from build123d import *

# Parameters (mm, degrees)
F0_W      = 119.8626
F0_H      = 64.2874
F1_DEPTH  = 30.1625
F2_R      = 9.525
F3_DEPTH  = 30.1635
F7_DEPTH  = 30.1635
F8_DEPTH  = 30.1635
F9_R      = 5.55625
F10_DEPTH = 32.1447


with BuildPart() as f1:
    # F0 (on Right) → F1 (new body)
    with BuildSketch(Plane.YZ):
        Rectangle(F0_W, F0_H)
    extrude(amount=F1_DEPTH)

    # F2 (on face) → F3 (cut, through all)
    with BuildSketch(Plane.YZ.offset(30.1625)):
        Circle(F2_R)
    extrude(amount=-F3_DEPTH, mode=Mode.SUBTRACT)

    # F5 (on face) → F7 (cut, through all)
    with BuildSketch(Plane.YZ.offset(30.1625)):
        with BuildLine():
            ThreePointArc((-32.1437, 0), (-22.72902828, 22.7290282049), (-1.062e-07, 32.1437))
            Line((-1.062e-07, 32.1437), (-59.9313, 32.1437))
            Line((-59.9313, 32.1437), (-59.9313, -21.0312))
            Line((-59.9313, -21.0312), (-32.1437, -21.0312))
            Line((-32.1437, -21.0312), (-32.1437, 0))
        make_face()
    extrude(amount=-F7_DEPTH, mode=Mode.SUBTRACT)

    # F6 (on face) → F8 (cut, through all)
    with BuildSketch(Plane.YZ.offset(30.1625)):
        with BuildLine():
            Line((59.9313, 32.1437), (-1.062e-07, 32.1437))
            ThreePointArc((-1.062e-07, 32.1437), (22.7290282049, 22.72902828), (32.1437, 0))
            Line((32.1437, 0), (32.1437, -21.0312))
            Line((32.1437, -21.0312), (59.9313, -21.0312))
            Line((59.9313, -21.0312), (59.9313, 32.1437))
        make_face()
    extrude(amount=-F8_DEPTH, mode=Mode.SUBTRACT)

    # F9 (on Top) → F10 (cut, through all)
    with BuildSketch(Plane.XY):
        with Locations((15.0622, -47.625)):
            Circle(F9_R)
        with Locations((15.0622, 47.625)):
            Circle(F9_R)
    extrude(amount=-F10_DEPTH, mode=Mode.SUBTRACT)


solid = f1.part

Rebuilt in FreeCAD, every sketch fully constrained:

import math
import FreeCAD as App
import Part
import Sketcher

V = App.Vector
Q = App.Units.Quantity

doc = App.newDocument("Part")
body = doc.addObject("PartDesign::Body", "Body")

# Sketch on YZ plane
sketch1 = doc.addObject("Sketcher::SketchObject", "Sketch")
body.addObject(sketch1)
sketch1.AttachmentSupport = (doc.YZ_Plane, [""])
sketch1.MapMode = "FlatFace"
sketch1.addGeometry([
    Part.LineSegment(V(-60, 32, 0), V(-60, -32, 0)),
    Part.LineSegment(V(-60, -32, 0), V(60, -32, 0)),
    Part.LineSegment(V(60, -32, 0), V(60, 32, 0)),
    Part.LineSegment(V(60, 32, 0), V(-60, 32, 0)),
], False)
sketch1.addConstraint([
    Sketcher.Constraint("Coincident", 0, 2, 1, 1),
    Sketcher.Constraint("Coincident", 1, 2, 2, 1),
    Sketcher.Constraint("Coincident", 2, 2, 3, 1),
    Sketcher.Constraint("Coincident", 3, 2, 0, 1),
    Sketcher.Constraint("Vertical", 0),
    Sketcher.Constraint("Horizontal", 1),
    Sketcher.Constraint("Vertical", 2),
    Sketcher.Constraint("Horizontal", 3),
    Sketcher.Constraint("Symmetric", 0, 2, 2, 2, -1, 1),
    Sketcher.Constraint("DistanceX", 1, 1, 1, 2, Q("4.719 in")),
    Sketcher.Constraint("DistanceY", 0, 2, 0, 1, Q("2.531 in")),
])
pad1 = doc.addObject("PartDesign::Pad", "Pad")
body.addObject(pad1)
pad1.Profile = sketch1
pad1.Length = Q("1.1875 in")

# Sketch on YZ plane
sketch2 = doc.addObject("Sketcher::SketchObject", "Sketch001")
body.addObject(sketch2)
sketch2.AttachmentSupport = (doc.YZ_Plane, [""])
sketch2.MapMode = "FlatFace"
sketch2.AttachmentOffset = App.Placement(V(0, 0, 1.1875 * 25.4), App.Rotation())
sketch2.addGeometry(Part.Circle(V(0, 0, 0), V(0, 0, 1), 10), False)
sketch2.addConstraint([
    Sketcher.Constraint("Coincident", 0, 3, -1, 1),
    Sketcher.Constraint("Diameter", 0, Q("0.75 in")),
])
pocket1 = doc.addObject("PartDesign::Pocket", "Pocket")
body.addObject(pocket1)
pocket1.Profile = sketch2
pocket1.Type = "ThroughAll"

# Sketch on YZ plane
sketch3 = doc.addObject("Sketcher::SketchObject", "Sketch002")
body.addObject(sketch3)
sketch3.AttachmentSupport = (doc.YZ_Plane, [""])
sketch3.MapMode = "FlatFace"
sketch3.AttachmentOffset = App.Placement(V(0, 0, 1.1875 * 25.4), App.Rotation())
sketch3.addGeometry([
    Part.ArcOfCircle(Part.Circle(V(0, 0, 0), V(0, 0, 1), 32), math.radians(90), math.radians(180)),  # 0
    Part.LineSegment(V(0, 32, 0), V(-60, 32, 0)),  # 1
    Part.LineSegment(V(-60, 32, 0), V(-60, -21, 0)),  # 2
    Part.LineSegment(V(-60, -21, 0), V(-32, -21, 0)),  # 3
    Part.LineSegment(V(-32, -21, 0), V(-32, 0, 0)),  # 4
], False)
sketch3.addConstraint([
    Sketcher.Constraint("Tangent", 0, 1, 1, 1),
    Sketcher.Constraint("Coincident", 1, 2, 2, 1),
    Sketcher.Constraint("Coincident", 2, 2, 3, 1),
    Sketcher.Constraint("Coincident", 3, 2, 4, 1),
    Sketcher.Constraint("Tangent", 4, 2, 0, 2),
    Sketcher.Constraint("Horizontal", 1),
    Sketcher.Constraint("Vertical", 2),
    Sketcher.Constraint("Horizontal", 3),
    Sketcher.Constraint("Vertical", 4),
    Sketcher.Constraint("Coincident", 0, 3, -1, 1),
    Sketcher.Constraint("Radius", 0, Q("1.2655 in")),
    Sketcher.Constraint("DistanceX", 3, 1, 3, 2, Q("1.094 in")),
    Sketcher.Constraint("DistanceY", 4, 1, 4, 2, Q("0.828 in")),
])
pocket2 = doc.addObject("PartDesign::Pocket", "Pocket001")
body.addObject(pocket2)
pocket2.Profile = sketch3
pocket2.Type = "ThroughAll"

# Sketch on YZ plane
sketch4 = doc.addObject("Sketcher::SketchObject", "Sketch003")
body.addObject(sketch4)
sketch4.AttachmentSupport = (doc.YZ_Plane, [""])
sketch4.MapMode = "FlatFace"
sketch4.AttachmentOffset = App.Placement(V(0, 0, 1.1875 * 25.4), App.Rotation())
sketch4.addGeometry([
    Part.LineSegment(V(60, 32, 0), V(0, 32, 0)),  # 0
    Part.ArcOfCircle(Part.Circle(V(0, 0, 0), V(0, 0, 1), 32), math.radians(0), math.radians(90)),  # 1
    Part.LineSegment(V(32, 0, 0), V(32, -21, 0)),  # 2
    Part.LineSegment(V(32, -21, 0), V(60, -21, 0)),  # 3
    Part.LineSegment(V(60, -21, 0), V(60, 32, 0)),  # 4
], False)
sketch4.addConstraint([
    Sketcher.Constraint("Tangent", 0, 2, 1, 2),
    Sketcher.Constraint("Tangent", 1, 1, 2, 1),
    Sketcher.Constraint("Coincident", 2, 2, 3, 1),
    Sketcher.Constraint("Coincident", 3, 2, 4, 1),
    Sketcher.Constraint("Coincident", 4, 2, 0, 1),
    Sketcher.Constraint("Horizontal", 0),
    Sketcher.Constraint("Vertical", 2),
    Sketcher.Constraint("Horizontal", 3),
    Sketcher.Constraint("Vertical", 4),
    Sketcher.Constraint("Coincident", 1, 3, -1, 1),
    Sketcher.Constraint("Radius", 1, Q("1.2655 in")),
    Sketcher.Constraint("DistanceX", 3, 1, 3, 2, Q("1.094 in")),
    Sketcher.Constraint("DistanceY", 2, 2, 2, 1, Q("0.828 in")),
])
pocket3 = doc.addObject("PartDesign::Pocket", "Pocket002")
body.addObject(pocket3)
pocket3.Profile = sketch4
pocket3.Type = "ThroughAll"

# Sketch on XY plane
sketch5 = doc.addObject("Sketcher::SketchObject", "Sketch004")
body.addObject(sketch5)
sketch5.AttachmentSupport = (doc.XY_Plane, [""])
sketch5.MapMode = "FlatFace"
sketch5.addGeometry([
    Part.Circle(V(15, -48, 0), V(0, 0, 1), 6),
    Part.Circle(V(15, 48, 0), V(0, 0, 1), 6),
], False)
sketch5.addConstraint([
    Sketcher.Constraint("Equal", 0, 1),
    Sketcher.Constraint("Symmetric", 0, 3, 1, 3, -1),
    Sketcher.Constraint("Diameter", 0, Q("0.4375 in")),
    Sketcher.Constraint("DistanceY", 0, 3, 1, 3, Q("3.75 in")),
    Sketcher.Constraint("DistanceX", -1, 1, 0, 3, Q("0.593 in")),
])
pocket4 = doc.addObject("PartDesign::Pocket", "Pocket003")
body.addObject(pocket4)
pocket4.Profile = sketch5
pocket4.Type = "ThroughAll"

doc.recompute()
